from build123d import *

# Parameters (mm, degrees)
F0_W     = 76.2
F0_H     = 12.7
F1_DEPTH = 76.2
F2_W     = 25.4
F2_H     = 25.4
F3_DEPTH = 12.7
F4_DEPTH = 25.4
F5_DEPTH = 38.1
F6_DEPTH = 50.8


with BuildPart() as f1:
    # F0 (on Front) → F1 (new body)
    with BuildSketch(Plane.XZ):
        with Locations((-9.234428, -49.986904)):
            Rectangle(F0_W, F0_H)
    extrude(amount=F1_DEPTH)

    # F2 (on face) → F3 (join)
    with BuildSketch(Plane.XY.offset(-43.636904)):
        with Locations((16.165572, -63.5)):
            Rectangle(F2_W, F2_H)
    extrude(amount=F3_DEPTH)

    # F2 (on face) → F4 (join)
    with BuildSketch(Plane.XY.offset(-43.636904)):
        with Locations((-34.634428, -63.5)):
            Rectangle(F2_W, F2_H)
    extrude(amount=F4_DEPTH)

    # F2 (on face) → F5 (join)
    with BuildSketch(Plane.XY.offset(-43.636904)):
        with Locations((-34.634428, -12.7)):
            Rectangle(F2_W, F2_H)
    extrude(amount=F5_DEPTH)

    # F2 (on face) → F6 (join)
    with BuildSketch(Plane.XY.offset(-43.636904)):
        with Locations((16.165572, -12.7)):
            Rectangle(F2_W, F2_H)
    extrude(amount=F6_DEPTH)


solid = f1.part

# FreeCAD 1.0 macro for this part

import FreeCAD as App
import Part
import Sketcher
from FreeCAD import Vector
Q = App.Units.Quantity


def add_polygon(sketch, points):
    """Adds a closed chain of lines whose ends are joined by coincident constraints."""
    first, n = sketch.GeometryCount, len(points)
    for a, b in zip(points, points[1:] + points[:1]):
        sketch.addGeometry(Part.LineSegment(App.Vector(*a, 0), App.Vector(*b, 0)), False)
    for i in range(n):
        sketch.addConstraint(Sketcher.Constraint("Coincident", first + i, 2, first + (i + 1) % n, 1))

doc = App.newDocument("Part")
body = doc.addObject("PartDesign::Body", "Body")

sketch1 = body.newObject("Sketcher::SketchObject", "Sketch")
sketch1.AttachmentSupport = (doc.getObject("XZ_Plane"), [""])
sketch1.MapMode = "FlatFace"
add_polygon(sketch1, [(-47, -44), (-47, -56), (29, -56), (29, -44)])
sketch1.addConstraint([
    Sketcher.Constraint("Vertical", 0),
    Sketcher.Constraint("Horizontal", 1),
    Sketcher.Constraint("Vertical", 2),
    Sketcher.Constraint("Horizontal", 3),
    Sketcher.Constraint("DistanceX", 1, 1, 1, 2, Q("3 in")),
    Sketcher.Constraint("DistanceY", 0, 2, 0, 1, Q("0.5 in")),
    Sketcher.Constraint("DistanceX", 0, 2, -1, 1, 47.334428),
    Sketcher.Constraint("DistanceY", 0, 2, -1, 1, 56.336904),
])
pad1 = body.newObject("PartDesign::Pad", "Pad")
pad1.Profile = sketch1
pad1.Length = Q("3 in")

sketch2 = body.newObject("Sketcher::SketchObject", "Sketch001")
sketch2.AttachmentSupport = (doc.getObject("XY_Plane"), [""])
sketch2.MapMode = "FlatFace"
sketch2.AttachmentOffset = App.Placement(Vector(0, 0, -43.636904), App.Rotation())
add_polygon(sketch2, [(3, -51), (3, -76), (29, -76), (29, -51)])
sketch2.addConstraint([
    Sketcher.Constraint("Vertical", 0),
    Sketcher.Constraint("Horizontal", 1),
    Sketcher.Constraint("Vertical", 2),
    Sketcher.Constraint("Horizontal", 3),
    Sketcher.Constraint("Equal", 3, 0),
    Sketcher.Constraint("DistanceX", 1, 1, 1, 2, Q("1 in")),
    Sketcher.Constraint("DistanceY", 0, 2, -1, 1, Q("3 in")),
    Sketcher.Constraint("DistanceX", -1, 1, 0, 2, 3.465572),
])
pad2 = body.newObject("PartDesign::Pad", "Pad001")
pad2.Profile = sketch2
pad2.Length = Q("0.5 in")

sketch3 = body.newObject("Sketcher::SketchObject", "Sketch002")
sketch3.AttachmentSupport = (doc.getObject("XY_Plane"), [""])
sketch3.MapMode = "FlatFace"
sketch3.AttachmentOffset = App.Placement(Vector(0, 0, -43.636904), App.Rotation())
add_polygon(sketch3, [(-47, -51), (-47, -76), (-22, -76), (-22, -51)])
sketch3.addConstraint([
    Sketcher.Constraint("Vertical", 0),
    Sketcher.Constraint("Horizontal", 1),
    Sketcher.Constraint("Vertical", 2),
    Sketcher.Constraint("Horizontal", 3),
    Sketcher.Constraint("Equal", 3, 0),
    Sketcher.Constraint("DistanceX", 1, 1, 1, 2, Q("1 in")),
    Sketcher.Constraint("DistanceY", 0, 2, -1, 1, Q("3 in")),
    Sketcher.Constraint("DistanceX", 0, 2, -1, 1, 47.334428),
])
pad3 = body.newObject("PartDesign::Pad", "Pad002")
pad3.Profile = sketch3
pad3.Length = Q("1 in")

sketch4 = body.newObject("Sketcher::SketchObject", "Sketch003")
sketch4.AttachmentSupport = (doc.getObject("XY_Plane"), [""])
sketch4.MapMode = "FlatFace"
sketch4.AttachmentOffset = App.Placement(Vector(0, 0, -43.636904), App.Rotation())
add_polygon(sketch4, [(-47, 0), (-47, -25), (-22, -25), (-22, 0)])
sketch4.addConstraint([
    Sketcher.Constraint("Vertical", 0),
    Sketcher.Constraint("Horizontal", 1),
    Sketcher.Constraint("Vertical", 2),
    Sketcher.Constraint("Horizontal", 3),
    Sketcher.Constraint("PointOnObject", 2, 2, -1),
    Sketcher.Constraint("Equal", 3, 0),
    Sketcher.Constraint("DistanceX", 1, 1, 1, 2, Q("1 in")),
    Sketcher.Constraint("DistanceX", 0, 2, -1, 1, 47.334428),
])
pad4 = body.newObject("PartDesign::Pad", "Pad003")
pad4.Profile = sketch4
pad4.Length = Q("1.5 in")

sketch5 = body.newObject("Sketcher::SketchObject", "Sketch004")
sketch5.AttachmentSupport = (doc.getObject("XY_Plane"), [""])
sketch5.MapMode = "FlatFace"
sketch5.AttachmentOffset = App.Placement(Vector(0, 0, -43.636904), App.Rotation())
add_polygon(sketch5, [(3, 0), (3, -25), (29, -25), (29, 0)])
sketch5.addConstraint([
    Sketcher.Constraint("Vertical", 0),
    Sketcher.Constraint("Horizontal", 1),
    Sketcher.Constraint("Vertical", 2),
    Sketcher.Constraint("Horizontal", 3),
    Sketcher.Constraint("PointOnObject", 2, 2, -1),
    Sketcher.Constraint("Equal", 3, 0),
    Sketcher.Constraint("DistanceX", 1, 1, 1, 2, Q("1 in")),
    Sketcher.Constraint("DistanceX", -1, 1, 0, 2, 3.465572),
])
pad5 = body.newObject("PartDesign::Pad", "Pad004")
pad5.Profile = sketch5
pad5.Length = Q("2 in")

doc.recompute()
